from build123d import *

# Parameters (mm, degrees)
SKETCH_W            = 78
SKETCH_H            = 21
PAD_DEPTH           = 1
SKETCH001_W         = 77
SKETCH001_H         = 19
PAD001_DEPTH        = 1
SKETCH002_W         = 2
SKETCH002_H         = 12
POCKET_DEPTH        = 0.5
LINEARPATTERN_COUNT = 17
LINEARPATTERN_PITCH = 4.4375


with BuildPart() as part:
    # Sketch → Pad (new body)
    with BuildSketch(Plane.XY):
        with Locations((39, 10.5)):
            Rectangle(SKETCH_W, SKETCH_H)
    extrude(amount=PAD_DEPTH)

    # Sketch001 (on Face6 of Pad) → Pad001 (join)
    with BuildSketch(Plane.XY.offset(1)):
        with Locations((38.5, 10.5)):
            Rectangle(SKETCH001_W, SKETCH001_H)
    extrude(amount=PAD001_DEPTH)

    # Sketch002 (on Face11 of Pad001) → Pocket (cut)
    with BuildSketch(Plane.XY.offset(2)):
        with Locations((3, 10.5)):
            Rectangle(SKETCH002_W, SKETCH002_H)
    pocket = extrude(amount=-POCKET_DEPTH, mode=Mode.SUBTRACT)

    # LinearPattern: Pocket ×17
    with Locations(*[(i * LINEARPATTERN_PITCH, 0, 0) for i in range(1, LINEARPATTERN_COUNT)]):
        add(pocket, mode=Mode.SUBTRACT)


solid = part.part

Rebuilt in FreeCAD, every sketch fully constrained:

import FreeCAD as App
import Part
import Sketcher

doc = App.newDocument("Part")
params = doc.addObject("Spreadsheet::Sheet", "Params")
for row, (alias, value) in enumerate([
    ("sketch1_width", "78 mm"),
    ("sketch1_height", "21 mm"),
    ("pad1_length", "1 mm"),
    ("sketch2_width", "77 mm"),
    ("sketch2_height", "19 mm"),
    ("pad2_length", "1 mm"),
    ("sketch3_width", "2 mm"),
    ("sketch3_height", "12 mm"),
    ("pocket1_length", "0.5 mm"),
    ("linearpattern_pitch", "4.4375 mm"),
], start=1):
    params.set(f"A{row}", alias)
    params.set(f"B{row}", "=" + value)
    params.setAlias(f"B{row}", alias)

body = doc.addObject("PartDesign::Body", "Body")

# Sketch on XY plane
sketch1 = body.newObject("Sketcher::SketchObject", "Sketch")
sketch1.AttachmentSupport = (doc.getObject("XY_Plane"), [""])
sketch1.MapMode = "FlatFace"
sketch1.addGeometry(Part.LineSegment(App.Vector(0, 21, 0), App.Vector(0, 0, 0)), False)
sketch1.addGeometry(Part.LineSegment(App.Vector(0, 0, 0), App.Vector(78, 0, 0)), False)
sketch1.addGeometry(Part.LineSegment(App.Vector(78, 0, 0), App.Vector(78, 21, 0)), False)
sketch1.addGeometry(Part.LineSegment(App.Vector(78, 21, 0), App.Vector(0, 21, 0)), False)
sketch1.addConstraint(Sketcher.Constraint("Coincident", 0, 2, 1, 1))
sketch1.addConstraint(Sketcher.Constraint("Coincident", 1, 2, 2, 1))
sketch1.addConstraint(Sketcher.Constraint("Coincident", 2, 2, 3, 1))
sketch1.addConstraint(Sketcher.Constraint("Coincident", 3, 2, 0, 1))
sketch1.addConstraint(Sketcher.Constraint("Vertical", 0))
sketch1.addConstraint(Sketcher.Constraint("Horizontal", 1))
sketch1.addConstraint(Sketcher.Constraint("Vertical", 2))
sketch1.addConstraint(Sketcher.Constraint("Horizontal", 3))
sketch1.addConstraint(Sketcher.Constraint("Coincident", 0, 2, -1, 1))
sketch1.addConstraint(Sketcher.Constraint("DistanceX", 1, 1, 1, 2, 78.0))
sketch1.addConstraint(Sketcher.Constraint("DistanceY", 0, 2, 0, 1, 21.0))
sketch1.setExpression("Constraints[9]", "Params.sketch1_width")
sketch1.setExpression("Constraints[10]", "Params.sketch1_height")
pad1 = body.newObject("PartDesign::Pad", "Pad")
pad1.Profile = sketch1
pad1.setExpression("Length", "Params.pad1_length")

# Sketch on XY plane
sketch2 = body.newObject("Sketcher::SketchObject", "Sketch001")
sketch2.AttachmentSupport = (doc.getObject("XY_Plane"), [""])
sketch2.MapMode = "FlatFace"
sketch2.AttachmentOffset = App.Placement(App.Vector(0, 0, 1), App.Rotation())
sketch2.addGeometry(Part.LineSegment(App.Vector(0, 20, 0), App.Vector(0, 1, 0)), False)
sketch2.addGeometry(Part.LineSegment(App.Vector(0, 1, 0), App.Vector(77, 1, 0)), False)
sketch2.addGeometry(Part.LineSegment(App.Vector(77, 1, 0), App.Vector(77, 20, 0)), False)
sketch2.addGeometry(Part.LineSegment(App.Vector(77, 20, 0), App.Vector(0, 20, 0)), False)
sketch2.addConstraint(Sketcher.Constraint("Coincident", 0, 2, 1, 1))
sketch2.addConstraint(Sketcher.Constraint("Coincident", 1, 2, 2, 1))
sketch2.addConstraint(Sketcher.Constraint("Coincident", 2, 2, 3, 1))
sketch2.addConstraint(Sketcher.Constraint("Coincident", 3, 2, 0, 1))
sketch2.addConstraint(Sketcher.Constraint("Vertical", 0))
sketch2.addConstraint(Sketcher.Constraint("Horizontal", 1))
sketch2.addConstraint(Sketcher.Constraint("Vertical", 2))
sketch2.addConstraint(Sketcher.Constraint("Horizontal", 3))
sketch2.addConstraint(Sketcher.Constraint("PointOnObject", 0, 2, -2))
sketch2.addConstraint(Sketcher.Constraint("DistanceX", 1, 1, 1, 2, 77.0))
sketch2.addConstraint(Sketcher.Constraint("DistanceY", 0, 2, 0, 1, 19.0))
sketch2.addConstraint(Sketcher.Constraint("DistanceY", -1, 1, 0, 2, 1.0))
sketch2.setExpression("Constraints[9]", "Params.sketch2_width")
sketch2.setExpression("Constraints[10]", "Params.sketch2_height")
pad2 = body.newObject("PartDesign::Pad", "Pad001")
pad2.Profile = sketch2
pad2.setExpression("Length", "Params.pad2_length")

# Sketch on XY plane
sketch3 = body.newObject("Sketcher::SketchObject", "Sketch002")
sketch3.AttachmentSupport = (doc.getObject("XY_Plane"), [""])
sketch3.MapMode = "FlatFace"
sketch3.AttachmentOffset = App.Placement(App.Vector(0, 0, 2), App.Rotation())
sketch3.addGeometry(Part.LineSegment(App.Vector(2, 16.5, 0), App.Vector(2, 4.5, 0)), False)
sketch3.addGeometry(Part.LineSegment(App.Vector(2, 4.5, 0), App.Vector(4, 4.5, 0)), False)
sketch3.addGeometry(Part.LineSegment(App.Vector(4, 4.5, 0), App.Vector(4, 16.5, 0)), False)
sketch3.addGeometry(Part.LineSegment(App.Vector(4, 16.5, 0), App.Vector(2, 16.5, 0)), False)
sketch3.addConstraint(Sketcher.Constraint("Coincident", 0, 2, 1, 1))
sketch3.addConstraint(Sketcher.Constraint("Coincident", 1, 2, 2, 1))
sketch3.addConstraint(Sketcher.Constraint("Coincident", 2, 2, 3, 1))
sketch3.addConstraint(Sketcher.Constraint("Coincident", 3, 2, 0, 1))
sketch3.addConstraint(Sketcher.Constraint("Vertical", 0))
sketch3.addConstraint(Sketcher.Constraint("Horizontal", 1))
sketch3.addConstraint(Sketcher.Constraint("Vertical", 2))
sketch3.addConstraint(Sketcher.Constraint("Horizontal", 3))
sketch3.addConstraint(Sketcher.Constraint("DistanceX", 1, 1, 1, 2, 2.0))
sketch3.addConstraint(Sketcher.Constraint("DistanceY", 0, 2, 0, 1, 12.0))
sketch3.addConstraint(Sketcher.Constraint("DistanceX", -1, 1, 0, 2, 2.0))
sketch3.addConstraint(Sketcher.Constraint("DistanceY", -1, 1, 0, 2, 4.5))
sketch3.setExpression("Constraints[8]", "Params.sketch3_width")
sketch3.setExpression("Constraints[9]", "Params.sketch3_height")
pocket1 = body.newObject("PartDesign::Pocket", "Pocket")
pocket1.Profile = sketch3
pocket1.setExpression("Length", "Params.pocket1_length")
doc.recompute()

linearpattern = body.newObject("PartDesign::LinearPattern", "LinearPattern")
linearpattern.Originals = [pocket1]
linearpattern.Direction = (doc.getObject("X_Axis"), [""])
linearpattern.Mode = "offset"
linearpattern.setExpression("Offset", "Params.linearpattern_pitch")
linearpattern.Occurrences = 17
body.Tip = linearpattern

doc.recompute()
